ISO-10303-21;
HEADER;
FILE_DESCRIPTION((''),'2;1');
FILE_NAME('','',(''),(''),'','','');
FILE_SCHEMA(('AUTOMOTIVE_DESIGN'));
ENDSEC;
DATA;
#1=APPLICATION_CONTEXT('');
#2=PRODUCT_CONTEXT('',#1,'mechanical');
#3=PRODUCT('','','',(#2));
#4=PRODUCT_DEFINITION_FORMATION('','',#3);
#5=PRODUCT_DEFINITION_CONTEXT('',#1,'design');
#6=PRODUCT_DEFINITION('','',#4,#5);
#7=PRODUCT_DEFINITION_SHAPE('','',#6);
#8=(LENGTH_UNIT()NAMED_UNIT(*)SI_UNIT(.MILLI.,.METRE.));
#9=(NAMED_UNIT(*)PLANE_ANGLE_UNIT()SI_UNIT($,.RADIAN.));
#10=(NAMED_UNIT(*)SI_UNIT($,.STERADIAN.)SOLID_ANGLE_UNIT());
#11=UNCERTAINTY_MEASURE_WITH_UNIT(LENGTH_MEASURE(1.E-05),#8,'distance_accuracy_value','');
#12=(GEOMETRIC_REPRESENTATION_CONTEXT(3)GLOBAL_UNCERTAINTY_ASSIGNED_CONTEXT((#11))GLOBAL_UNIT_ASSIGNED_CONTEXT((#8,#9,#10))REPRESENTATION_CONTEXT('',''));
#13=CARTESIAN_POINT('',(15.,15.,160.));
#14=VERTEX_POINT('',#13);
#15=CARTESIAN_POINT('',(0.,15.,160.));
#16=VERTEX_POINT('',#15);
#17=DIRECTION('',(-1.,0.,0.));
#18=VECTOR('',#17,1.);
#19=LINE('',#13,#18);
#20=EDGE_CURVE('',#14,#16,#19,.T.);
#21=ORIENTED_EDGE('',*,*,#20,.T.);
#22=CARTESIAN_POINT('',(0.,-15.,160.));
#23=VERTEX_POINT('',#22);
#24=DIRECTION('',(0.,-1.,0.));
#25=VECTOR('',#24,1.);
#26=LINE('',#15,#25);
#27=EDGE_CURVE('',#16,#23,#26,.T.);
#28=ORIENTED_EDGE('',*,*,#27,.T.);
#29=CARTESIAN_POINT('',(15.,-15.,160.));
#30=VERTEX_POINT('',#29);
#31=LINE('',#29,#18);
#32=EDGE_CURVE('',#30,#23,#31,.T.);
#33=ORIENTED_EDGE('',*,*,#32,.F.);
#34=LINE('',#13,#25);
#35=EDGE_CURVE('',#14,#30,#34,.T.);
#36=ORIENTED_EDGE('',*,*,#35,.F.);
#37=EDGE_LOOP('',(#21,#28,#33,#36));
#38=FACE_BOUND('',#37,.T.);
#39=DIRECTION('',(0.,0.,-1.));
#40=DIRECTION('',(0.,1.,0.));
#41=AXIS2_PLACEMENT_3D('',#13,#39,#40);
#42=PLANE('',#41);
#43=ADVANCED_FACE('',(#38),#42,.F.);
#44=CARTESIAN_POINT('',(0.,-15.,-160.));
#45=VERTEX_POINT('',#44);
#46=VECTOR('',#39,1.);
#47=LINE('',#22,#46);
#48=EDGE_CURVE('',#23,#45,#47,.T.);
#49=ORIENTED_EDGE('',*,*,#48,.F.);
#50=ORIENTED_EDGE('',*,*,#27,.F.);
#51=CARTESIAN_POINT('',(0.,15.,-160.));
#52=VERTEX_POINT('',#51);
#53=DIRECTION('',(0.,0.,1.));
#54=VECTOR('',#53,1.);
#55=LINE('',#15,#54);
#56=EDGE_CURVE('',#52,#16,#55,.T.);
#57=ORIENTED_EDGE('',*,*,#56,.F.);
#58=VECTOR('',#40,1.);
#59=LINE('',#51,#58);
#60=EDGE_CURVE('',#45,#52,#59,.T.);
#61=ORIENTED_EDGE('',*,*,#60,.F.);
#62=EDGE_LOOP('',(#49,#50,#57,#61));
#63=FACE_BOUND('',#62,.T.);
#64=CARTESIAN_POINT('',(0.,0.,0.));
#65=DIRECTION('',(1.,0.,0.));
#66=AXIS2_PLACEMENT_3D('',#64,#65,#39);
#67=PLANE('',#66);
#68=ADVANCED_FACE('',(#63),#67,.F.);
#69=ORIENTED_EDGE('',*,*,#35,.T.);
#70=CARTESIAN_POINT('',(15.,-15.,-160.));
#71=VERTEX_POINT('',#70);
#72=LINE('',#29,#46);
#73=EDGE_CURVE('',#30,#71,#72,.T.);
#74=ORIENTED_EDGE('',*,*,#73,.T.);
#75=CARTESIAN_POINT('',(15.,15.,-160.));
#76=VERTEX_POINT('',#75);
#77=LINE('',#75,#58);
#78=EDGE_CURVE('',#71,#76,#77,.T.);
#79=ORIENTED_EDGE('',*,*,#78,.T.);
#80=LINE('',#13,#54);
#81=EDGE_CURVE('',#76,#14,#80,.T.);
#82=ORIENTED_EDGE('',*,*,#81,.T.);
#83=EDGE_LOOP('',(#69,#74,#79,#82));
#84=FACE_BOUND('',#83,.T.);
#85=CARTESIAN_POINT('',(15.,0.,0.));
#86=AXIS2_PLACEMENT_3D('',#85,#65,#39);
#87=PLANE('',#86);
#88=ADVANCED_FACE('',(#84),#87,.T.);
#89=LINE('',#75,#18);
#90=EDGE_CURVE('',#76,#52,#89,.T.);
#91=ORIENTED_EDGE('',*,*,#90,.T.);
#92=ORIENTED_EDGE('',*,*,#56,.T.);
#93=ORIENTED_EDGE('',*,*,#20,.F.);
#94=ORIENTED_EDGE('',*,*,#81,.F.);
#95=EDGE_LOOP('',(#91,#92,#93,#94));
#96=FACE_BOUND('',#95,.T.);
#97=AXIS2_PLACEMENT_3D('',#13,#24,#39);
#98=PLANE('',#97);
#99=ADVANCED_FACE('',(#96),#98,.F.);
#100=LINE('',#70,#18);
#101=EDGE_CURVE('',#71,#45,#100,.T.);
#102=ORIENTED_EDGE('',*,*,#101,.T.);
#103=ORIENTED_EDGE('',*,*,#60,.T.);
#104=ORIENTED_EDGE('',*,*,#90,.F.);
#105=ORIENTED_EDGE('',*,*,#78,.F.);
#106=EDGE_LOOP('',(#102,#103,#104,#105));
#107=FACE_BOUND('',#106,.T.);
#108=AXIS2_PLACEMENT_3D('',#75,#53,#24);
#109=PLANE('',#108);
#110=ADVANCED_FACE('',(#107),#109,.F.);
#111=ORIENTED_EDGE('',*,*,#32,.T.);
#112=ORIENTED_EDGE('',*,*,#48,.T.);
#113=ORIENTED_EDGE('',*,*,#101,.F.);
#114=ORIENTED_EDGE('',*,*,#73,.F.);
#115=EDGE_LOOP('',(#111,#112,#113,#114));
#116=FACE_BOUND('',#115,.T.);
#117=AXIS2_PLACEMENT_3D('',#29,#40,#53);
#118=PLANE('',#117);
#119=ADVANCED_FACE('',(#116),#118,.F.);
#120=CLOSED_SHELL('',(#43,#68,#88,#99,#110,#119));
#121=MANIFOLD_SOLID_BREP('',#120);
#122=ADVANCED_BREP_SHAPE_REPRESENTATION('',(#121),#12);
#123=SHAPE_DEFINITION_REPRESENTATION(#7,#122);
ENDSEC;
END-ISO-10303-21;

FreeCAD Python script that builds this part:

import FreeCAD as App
import Part
import Sketcher

doc = App.newDocument("Part")
body = doc.addObject("PartDesign::Body", "Body")

# Sketch on YZ plane
sketch1 = body.newObject("Sketcher::SketchObject", "Sketch")
sketch1.AttachmentSupport = (doc.getObject("YZ_Plane"), [""])
sketch1.MapMode = "FlatFace"
sketch1.addGeometry([
    Part.LineSegment(App.Vector(15, 160, 0), App.Vector(-15, 160, 0)),
    Part.LineSegment(App.Vector(-15, 160, 0), App.Vector(-15, -160, 0)),
    Part.LineSegment(App.Vector(-15, -160, 0), App.Vector(15, -160, 0)),
    Part.LineSegment(App.Vector(15, -160, 0), App.Vector(15, 160, 0)),
], False)
sketch1.addConstraint([
    Sketcher.Constraint("Coincident", 0, 2, 1, 1),
    Sketcher.Constraint("Coincident", 1, 2, 2, 1),
    Sketcher.Constraint("Coincident", 2, 2, 3, 1),
    Sketcher.Constraint("Coincident", 3, 2, 0, 1),
    Sketcher.Constraint("Horizontal", 0),
    Sketcher.Constraint("Vertical", 1),
    Sketcher.Constraint("Horizontal", 2),
    Sketcher.Constraint("Vertical", 3),
    Sketcher.Constraint("Symmetric", 0, 2, 2, 2, -1, 1),
    Sketcher.Constraint("DistanceX", 0, 2, 0, 1, 30.0),
    Sketcher.Constraint("DistanceY", 1, 2, 1, 1, 320.0),
])
pad1 = body.newObject("PartDesign::Pad", "Pad")
pad1.Profile = sketch1
pad1.Length = 15

doc.recompute()
